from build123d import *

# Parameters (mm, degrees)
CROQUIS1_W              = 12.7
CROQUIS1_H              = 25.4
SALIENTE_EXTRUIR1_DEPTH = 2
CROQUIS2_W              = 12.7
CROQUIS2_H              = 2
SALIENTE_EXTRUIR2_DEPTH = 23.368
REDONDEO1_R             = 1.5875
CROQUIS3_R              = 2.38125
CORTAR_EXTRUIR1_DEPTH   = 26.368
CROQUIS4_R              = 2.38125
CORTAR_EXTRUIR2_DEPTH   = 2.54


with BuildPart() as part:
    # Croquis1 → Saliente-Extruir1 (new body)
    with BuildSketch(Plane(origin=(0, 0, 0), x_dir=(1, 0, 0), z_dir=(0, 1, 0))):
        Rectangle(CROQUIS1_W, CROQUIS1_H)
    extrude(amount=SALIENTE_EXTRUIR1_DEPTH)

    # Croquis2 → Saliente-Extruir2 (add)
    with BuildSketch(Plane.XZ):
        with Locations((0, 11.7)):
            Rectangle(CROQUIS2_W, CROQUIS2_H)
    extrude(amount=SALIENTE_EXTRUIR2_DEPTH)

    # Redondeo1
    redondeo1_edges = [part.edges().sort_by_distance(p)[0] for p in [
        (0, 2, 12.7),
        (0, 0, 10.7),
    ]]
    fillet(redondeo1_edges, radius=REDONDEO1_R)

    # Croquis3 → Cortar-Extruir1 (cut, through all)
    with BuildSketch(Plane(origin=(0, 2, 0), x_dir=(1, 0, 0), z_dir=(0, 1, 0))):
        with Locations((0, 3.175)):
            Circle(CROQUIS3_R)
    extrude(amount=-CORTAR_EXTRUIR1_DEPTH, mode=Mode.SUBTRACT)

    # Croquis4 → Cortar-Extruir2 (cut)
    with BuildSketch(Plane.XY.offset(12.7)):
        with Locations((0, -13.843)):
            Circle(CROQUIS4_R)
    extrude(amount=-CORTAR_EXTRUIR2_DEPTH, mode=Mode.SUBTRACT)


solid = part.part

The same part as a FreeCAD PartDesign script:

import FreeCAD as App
import Part
import Sketcher
from FreeCAD import Vector
Q = App.Units.Quantity


def edges_at(feature, points):
    """Names of the edges that pass closest to the given points."""
    edges = feature.Shape.Edges
    near = lambda p: min(range(len(edges)), key=lambda i: edges[i].distToShape(Part.Vertex(*p))[0])
    return sorted({f"Edge{near(p) + 1}" for p in points})


def add_polygon(sketch, points):
    """Adds a closed chain of lines whose ends are joined by coincident constraints."""
    first, n = sketch.GeometryCount, len(points)
    for a, b in zip(points, points[1:] + points[:1]):
        sketch.addGeometry(Part.LineSegment(App.Vector(*a, 0), App.Vector(*b, 0)), False)
    for i in range(n):
        sketch.addConstraint(Sketcher.Constraint("Coincident", first + i, 2, first + (i + 1) % n, 1))

doc = App.newDocument("Part")
params = doc.addObject("Spreadsheet::Sheet", "Params")
for row, (alias, value) in enumerate([
    ("sketch1_height", "1 in"),
    ("sketch1_width", "0.5 in"),
    ("pad1_length", "2 mm"),
    ("sketch2_width", "0.5 in"),
    ("pad2_length", "0.92 in"),
    ("fillet_radius", "0.0625 in"),
    ("sketch3_diameter", "0.1875 in"),
    ("sketch4_diameter", "0.1875 in"),
    ("pocket2_length", "0.1 in"),
], start=1):
    params.set(f"A{row}", alias)
    params.set(f"B{row}", "=" + value)
    params.setAlias(f"B{row}", alias)

body = doc.addObject("PartDesign::Body", "Body")

# Sketch on XZ plane
sketch1 = body.newObject("Sketcher::SketchObject", "Sketch")
sketch1.AttachmentSupport = (doc.getObject("XZ_Plane"), [""])
sketch1.MapMode = "FlatFace"
add_polygon(sketch1, [(-6.35, -12.7), (-6.35, 12.7), (6.35, 12.7), (6.35, -12.7)])  # lines 0-3
sketch1.addConstraint([
    Sketcher.Constraint("Vertical", 0),
    Sketcher.Constraint("Horizontal", 1),
    Sketcher.Constraint("Vertical", 2),
    Sketcher.Constraint("Horizontal", 3),
    Sketcher.Constraint("Symmetric", 0, 2, 2, 2, -1, 1),
    Sketcher.Constraint("DistanceY", 0, 1, 0, 2, Q("1 in")),
    Sketcher.Constraint("DistanceX", 1, 1, 1, 2, Q("0.5 in")),
])
sketch1.setExpression("Constraints[9]", "Params.sketch1_height")
sketch1.setExpression("Constraints[10]", "Params.sketch1_width")
pad1 = body.newObject("PartDesign::Pad", "Pad")
pad1.Profile = sketch1
pad1.setExpression("Length", "Params.pad1_length")
pad1.Reversed = True

# Sketch on XZ plane
sketch2 = body.newObject("Sketcher::SketchObject", "Sketch001")
sketch2.AttachmentSupport = (doc.getObject("XZ_Plane"), [""])
sketch2.MapMode = "FlatFace"
add_polygon(sketch2, [(-6.35, 12.7), (-6.35, 10.7), (6.35, 10.7), (6.35, 12.7)])  # lines 0-3
sketch2.addConstraint([
    Sketcher.Constraint("Vertical", 0),
    Sketcher.Constraint("Horizontal", 1),
    Sketcher.Constraint("Vertical", 2),
    Sketcher.Constraint("Horizontal", 3),
    Sketcher.Constraint("DistanceX", 1, 1, 1, 2, Q("0.5 in")),
    Sketcher.Constraint("DistanceY", -1, 1, 2, 2, Q("0.5 in")),
    Sketcher.Constraint("DistanceX", 0, 2, -1, 1, Q("0.25 in")),
    Sketcher.Constraint("DistanceY", 0, 2, 0, 1, 2.0),
])
sketch2.setExpression("Constraints[8]", "Params.sketch2_width")
pad2 = body.newObject("PartDesign::Pad", "Pad001")
pad2.Profile = sketch2
pad2.setExpression("Length", "Params.pad2_length")
doc.recompute()

fillet = body.newObject("PartDesign::Fillet", "Fillet")
fillet.Base = (pad2, edges_at(pad2, [(0, 2, 12.7), (0, 0, 10.7)]))
fillet.setExpression("Radius", "Params.fillet_radius")

# Sketch on XZ plane
sketch3 = body.newObject("Sketcher::SketchObject", "Sketch002")
sketch3.AttachmentSupport = (doc.getObject("XZ_Plane"), [""])
sketch3.MapMode = "FlatFace"
sketch3.AttachmentOffset = App.Placement(Vector(0, 0, -2), App.Rotation())
sketch3.addGeometry(Part.Circle(Vector(0, -3.175, 0), Vector(0, 0, 1), 2.38125), False)
sketch3.addConstraint([
    Sketcher.Constraint("PointOnObject", 0, 3, -2),
    Sketcher.Constraint("Diameter", 0, Q("0.1875 in")),
    Sketcher.Constraint("DistanceY", 0, 3, -1, 1, Q("0.125 in")),
])
sketch3.setExpression("Constraints[1]", "Params.sketch3_diameter")
pocket1 = body.newObject("PartDesign::Pocket", "Pocket")
pocket1.Profile = sketch3
pocket1.Type = "ThroughAll"
pocket1.Reversed = True

# Sketch on XY plane
sketch4 = body.newObject("Sketcher::SketchObject", "Sketch003")
sketch4.AttachmentSupport = (doc.getObject("XY_Plane"), [""])
sketch4.MapMode = "FlatFace"
sketch4.AttachmentOffset = App.Placement(Vector(0, 0, 0.5 * 25.4), App.Rotation())
sketch4.addGeometry(Part.Circle(Vector(0, -13.843, 0), Vector(0, 0, 1), 2.38125), False)
sketch4.addConstraint([
    Sketcher.Constraint("PointOnObject", 0, 3, -2),
    Sketcher.Constraint("Diameter", 0, Q("0.1875 in")),
    Sketcher.Constraint("DistanceY", 0, 3, -1, 1, Q("0.545 in")),
])
sketch4.setExpression("Constraints[1]", "Params.sketch4_diameter")
pocket2 = body.newObject("PartDesign::Pocket", "Pocket001")
pocket2.Profile = sketch4
pocket2.setExpression("Length", "Params.pocket2_length")

doc.recompute()
